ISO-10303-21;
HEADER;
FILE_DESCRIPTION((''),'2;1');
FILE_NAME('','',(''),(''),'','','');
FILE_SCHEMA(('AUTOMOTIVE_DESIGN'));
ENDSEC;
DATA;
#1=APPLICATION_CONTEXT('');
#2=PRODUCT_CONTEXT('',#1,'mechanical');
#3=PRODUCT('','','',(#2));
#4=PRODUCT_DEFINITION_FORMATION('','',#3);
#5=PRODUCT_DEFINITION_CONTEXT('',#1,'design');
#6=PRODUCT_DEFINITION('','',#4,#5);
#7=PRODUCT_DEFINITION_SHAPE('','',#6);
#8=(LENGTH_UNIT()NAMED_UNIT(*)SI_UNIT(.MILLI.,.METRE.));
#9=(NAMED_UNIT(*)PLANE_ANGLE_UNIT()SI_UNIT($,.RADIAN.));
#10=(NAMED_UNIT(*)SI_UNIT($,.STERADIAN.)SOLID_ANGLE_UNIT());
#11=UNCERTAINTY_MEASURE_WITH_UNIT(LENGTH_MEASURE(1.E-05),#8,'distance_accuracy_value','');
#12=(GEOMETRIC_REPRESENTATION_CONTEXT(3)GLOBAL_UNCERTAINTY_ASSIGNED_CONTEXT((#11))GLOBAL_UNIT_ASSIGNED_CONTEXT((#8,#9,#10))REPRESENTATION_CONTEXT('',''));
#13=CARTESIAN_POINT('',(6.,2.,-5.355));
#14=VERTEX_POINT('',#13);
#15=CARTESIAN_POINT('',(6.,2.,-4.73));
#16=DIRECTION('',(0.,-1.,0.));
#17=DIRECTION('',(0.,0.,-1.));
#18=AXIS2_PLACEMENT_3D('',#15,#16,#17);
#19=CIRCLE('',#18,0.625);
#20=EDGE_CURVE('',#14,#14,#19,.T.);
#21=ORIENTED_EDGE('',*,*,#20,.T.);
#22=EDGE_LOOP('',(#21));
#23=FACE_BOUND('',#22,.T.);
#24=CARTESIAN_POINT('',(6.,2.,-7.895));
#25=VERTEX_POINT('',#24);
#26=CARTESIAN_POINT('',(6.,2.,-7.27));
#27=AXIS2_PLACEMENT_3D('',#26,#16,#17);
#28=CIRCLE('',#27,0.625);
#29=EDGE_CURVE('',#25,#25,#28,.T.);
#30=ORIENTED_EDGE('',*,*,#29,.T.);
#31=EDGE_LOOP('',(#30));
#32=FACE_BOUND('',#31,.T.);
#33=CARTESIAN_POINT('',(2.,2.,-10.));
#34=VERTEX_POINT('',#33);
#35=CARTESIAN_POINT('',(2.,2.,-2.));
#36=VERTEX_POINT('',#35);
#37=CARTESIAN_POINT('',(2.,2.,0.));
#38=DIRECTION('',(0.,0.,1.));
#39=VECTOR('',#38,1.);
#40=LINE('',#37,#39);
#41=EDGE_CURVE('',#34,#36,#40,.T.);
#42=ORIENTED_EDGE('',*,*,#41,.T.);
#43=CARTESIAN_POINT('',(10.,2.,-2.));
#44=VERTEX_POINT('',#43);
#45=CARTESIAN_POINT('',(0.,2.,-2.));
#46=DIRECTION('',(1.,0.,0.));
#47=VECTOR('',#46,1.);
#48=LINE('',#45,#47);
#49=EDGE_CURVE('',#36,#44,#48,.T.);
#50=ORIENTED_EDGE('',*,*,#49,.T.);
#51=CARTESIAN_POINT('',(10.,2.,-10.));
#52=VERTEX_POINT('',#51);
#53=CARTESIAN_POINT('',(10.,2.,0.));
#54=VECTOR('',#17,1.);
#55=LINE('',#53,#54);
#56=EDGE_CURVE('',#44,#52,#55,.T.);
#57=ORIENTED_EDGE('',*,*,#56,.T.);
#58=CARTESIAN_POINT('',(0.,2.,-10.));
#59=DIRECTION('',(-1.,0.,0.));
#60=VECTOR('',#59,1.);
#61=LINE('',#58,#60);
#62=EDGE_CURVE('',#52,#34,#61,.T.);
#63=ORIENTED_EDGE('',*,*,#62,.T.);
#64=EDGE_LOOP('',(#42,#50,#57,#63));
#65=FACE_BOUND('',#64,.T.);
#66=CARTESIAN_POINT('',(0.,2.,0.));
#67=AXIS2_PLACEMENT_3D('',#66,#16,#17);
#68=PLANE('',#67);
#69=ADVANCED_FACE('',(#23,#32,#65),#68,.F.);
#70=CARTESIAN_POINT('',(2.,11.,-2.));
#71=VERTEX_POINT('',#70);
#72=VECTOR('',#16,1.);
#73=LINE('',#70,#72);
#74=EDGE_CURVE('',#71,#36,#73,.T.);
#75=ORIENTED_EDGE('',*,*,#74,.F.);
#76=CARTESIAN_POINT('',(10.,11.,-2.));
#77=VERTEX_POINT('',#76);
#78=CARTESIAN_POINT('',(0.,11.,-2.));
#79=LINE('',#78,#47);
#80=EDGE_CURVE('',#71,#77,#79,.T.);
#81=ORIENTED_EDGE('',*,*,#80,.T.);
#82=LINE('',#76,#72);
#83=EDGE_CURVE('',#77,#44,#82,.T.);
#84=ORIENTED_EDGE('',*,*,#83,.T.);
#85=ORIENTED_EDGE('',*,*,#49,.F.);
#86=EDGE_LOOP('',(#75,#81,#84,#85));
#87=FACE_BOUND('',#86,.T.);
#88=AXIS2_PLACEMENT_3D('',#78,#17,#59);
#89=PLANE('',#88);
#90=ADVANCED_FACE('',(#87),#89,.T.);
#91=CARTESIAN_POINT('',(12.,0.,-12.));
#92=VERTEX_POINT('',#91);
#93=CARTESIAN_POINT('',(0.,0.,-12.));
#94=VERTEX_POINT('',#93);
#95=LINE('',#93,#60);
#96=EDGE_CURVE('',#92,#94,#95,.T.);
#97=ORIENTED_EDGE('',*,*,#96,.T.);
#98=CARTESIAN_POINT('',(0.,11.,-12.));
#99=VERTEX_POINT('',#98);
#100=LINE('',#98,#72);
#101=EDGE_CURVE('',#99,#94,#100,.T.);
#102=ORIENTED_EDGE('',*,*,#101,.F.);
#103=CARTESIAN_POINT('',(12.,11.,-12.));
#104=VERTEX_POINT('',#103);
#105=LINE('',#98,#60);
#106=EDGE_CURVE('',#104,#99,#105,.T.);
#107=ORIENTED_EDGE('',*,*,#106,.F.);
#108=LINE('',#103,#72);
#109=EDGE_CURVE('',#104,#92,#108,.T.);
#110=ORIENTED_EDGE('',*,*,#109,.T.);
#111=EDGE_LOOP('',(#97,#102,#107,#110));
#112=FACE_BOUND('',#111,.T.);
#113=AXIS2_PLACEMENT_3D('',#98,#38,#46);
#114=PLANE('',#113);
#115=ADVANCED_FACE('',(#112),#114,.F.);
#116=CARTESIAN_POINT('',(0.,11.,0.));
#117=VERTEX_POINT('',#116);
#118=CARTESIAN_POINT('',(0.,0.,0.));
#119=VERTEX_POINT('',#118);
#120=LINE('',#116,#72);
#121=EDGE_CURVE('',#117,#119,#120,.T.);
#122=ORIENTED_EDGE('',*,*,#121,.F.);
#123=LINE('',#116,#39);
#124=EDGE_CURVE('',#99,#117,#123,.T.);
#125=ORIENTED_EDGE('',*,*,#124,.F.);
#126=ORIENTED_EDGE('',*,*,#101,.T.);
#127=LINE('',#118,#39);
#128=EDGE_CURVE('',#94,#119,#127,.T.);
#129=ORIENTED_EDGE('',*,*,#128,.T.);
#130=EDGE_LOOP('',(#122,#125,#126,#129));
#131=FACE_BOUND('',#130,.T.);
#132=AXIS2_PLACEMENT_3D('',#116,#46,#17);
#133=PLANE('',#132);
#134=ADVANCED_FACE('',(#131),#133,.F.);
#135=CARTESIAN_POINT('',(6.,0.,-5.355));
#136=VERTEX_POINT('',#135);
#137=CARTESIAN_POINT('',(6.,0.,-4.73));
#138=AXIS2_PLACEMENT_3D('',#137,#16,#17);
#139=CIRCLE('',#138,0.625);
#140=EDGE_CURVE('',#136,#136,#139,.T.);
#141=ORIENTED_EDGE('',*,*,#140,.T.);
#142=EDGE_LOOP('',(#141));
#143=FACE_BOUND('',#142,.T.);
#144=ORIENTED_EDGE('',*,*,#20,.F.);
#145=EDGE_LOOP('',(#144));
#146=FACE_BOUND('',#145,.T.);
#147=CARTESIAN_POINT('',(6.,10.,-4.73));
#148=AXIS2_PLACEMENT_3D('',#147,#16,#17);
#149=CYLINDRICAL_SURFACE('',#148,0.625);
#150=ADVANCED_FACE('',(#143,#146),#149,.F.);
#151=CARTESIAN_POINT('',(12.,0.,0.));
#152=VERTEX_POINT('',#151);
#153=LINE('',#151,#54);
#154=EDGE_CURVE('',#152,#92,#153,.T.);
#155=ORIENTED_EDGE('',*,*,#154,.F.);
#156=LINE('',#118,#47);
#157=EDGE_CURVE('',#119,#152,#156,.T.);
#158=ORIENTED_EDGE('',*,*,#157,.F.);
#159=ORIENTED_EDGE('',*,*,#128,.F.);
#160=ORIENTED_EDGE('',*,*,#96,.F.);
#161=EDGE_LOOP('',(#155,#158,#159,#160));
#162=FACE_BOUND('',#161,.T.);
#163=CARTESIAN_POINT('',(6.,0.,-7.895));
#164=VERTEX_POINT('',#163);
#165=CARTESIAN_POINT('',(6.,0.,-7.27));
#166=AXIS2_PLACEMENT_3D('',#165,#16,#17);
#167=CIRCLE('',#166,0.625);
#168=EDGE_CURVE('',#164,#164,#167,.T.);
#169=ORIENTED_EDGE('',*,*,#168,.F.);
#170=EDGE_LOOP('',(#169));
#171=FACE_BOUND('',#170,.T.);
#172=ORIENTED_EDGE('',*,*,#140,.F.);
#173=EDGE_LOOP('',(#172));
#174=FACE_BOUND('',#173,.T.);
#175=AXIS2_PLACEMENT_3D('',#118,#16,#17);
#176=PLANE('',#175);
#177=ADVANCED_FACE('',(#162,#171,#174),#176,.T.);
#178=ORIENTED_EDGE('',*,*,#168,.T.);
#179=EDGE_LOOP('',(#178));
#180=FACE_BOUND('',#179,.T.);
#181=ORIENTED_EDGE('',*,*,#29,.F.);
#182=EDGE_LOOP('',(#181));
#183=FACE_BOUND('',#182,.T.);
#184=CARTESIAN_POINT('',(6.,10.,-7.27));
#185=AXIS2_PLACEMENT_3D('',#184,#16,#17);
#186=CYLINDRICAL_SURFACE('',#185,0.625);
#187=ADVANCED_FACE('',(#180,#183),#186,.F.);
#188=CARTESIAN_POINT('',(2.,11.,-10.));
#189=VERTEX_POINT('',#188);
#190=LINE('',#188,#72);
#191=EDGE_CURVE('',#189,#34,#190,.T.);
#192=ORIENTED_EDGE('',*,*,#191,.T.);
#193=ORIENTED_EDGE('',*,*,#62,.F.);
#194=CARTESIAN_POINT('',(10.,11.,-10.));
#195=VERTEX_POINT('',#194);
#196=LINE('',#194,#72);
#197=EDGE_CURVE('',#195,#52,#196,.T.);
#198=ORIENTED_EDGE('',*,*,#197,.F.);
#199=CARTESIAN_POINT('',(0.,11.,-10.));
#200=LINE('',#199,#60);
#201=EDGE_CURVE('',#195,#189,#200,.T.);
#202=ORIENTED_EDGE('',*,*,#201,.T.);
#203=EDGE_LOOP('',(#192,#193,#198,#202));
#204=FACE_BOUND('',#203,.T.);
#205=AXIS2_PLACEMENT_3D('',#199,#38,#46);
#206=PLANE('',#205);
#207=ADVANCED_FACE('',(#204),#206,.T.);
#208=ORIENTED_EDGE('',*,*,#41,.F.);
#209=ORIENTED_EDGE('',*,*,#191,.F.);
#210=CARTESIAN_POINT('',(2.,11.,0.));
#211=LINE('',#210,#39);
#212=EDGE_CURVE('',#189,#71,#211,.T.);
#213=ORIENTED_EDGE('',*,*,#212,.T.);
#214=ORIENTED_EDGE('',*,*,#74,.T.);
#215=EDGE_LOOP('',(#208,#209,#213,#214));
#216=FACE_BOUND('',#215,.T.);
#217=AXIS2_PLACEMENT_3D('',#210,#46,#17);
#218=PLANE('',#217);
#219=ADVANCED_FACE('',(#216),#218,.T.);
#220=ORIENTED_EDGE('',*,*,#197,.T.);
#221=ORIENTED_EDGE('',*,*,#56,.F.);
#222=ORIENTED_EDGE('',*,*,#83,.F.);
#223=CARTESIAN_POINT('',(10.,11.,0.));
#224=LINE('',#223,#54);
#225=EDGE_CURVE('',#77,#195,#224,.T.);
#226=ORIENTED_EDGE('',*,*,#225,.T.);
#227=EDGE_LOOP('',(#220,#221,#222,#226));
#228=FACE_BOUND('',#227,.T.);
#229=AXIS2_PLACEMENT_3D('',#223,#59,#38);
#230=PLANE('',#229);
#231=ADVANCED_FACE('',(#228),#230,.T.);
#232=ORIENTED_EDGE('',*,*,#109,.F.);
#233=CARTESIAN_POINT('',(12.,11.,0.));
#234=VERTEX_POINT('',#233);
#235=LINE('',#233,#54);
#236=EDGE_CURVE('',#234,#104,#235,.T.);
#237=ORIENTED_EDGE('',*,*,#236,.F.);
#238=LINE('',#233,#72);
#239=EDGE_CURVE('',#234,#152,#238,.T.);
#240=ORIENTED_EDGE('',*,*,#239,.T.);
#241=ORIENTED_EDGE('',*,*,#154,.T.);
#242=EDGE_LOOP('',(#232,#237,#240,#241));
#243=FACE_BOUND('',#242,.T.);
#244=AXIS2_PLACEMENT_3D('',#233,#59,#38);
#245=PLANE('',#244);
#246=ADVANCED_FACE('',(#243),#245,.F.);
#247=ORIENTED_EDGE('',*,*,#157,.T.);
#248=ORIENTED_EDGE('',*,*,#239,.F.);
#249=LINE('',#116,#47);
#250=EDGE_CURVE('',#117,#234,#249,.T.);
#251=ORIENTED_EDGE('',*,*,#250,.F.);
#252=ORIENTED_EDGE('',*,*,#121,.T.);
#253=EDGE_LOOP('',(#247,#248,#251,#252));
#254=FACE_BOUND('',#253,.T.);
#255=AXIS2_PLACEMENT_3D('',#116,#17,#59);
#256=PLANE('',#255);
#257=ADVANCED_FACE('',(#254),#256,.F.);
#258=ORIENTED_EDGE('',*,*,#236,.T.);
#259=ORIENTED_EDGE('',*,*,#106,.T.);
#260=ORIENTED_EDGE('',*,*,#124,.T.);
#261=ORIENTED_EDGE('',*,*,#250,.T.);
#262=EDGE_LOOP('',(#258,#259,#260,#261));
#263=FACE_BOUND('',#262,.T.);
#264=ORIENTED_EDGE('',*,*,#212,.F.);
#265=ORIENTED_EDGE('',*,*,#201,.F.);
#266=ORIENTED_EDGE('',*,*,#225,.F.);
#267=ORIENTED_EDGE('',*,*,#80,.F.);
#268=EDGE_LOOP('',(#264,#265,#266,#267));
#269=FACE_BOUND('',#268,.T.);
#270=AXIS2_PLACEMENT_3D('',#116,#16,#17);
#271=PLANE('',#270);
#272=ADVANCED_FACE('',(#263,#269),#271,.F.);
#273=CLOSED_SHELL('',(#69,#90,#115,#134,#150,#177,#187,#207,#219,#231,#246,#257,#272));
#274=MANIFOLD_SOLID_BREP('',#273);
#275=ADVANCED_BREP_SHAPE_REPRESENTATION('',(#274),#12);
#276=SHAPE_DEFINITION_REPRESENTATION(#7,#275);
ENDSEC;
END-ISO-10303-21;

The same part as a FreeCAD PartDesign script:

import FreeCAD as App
import Part
import Sketcher

V = App.Vector
Q = App.Units.Quantity


def faces_at(feature, points):
    """Names of the faces that lie closest to the given points."""
    faces = feature.Shape.Faces
    near = lambda p: min(range(len(faces)), key=lambda i: faces[i].distToShape(Part.Vertex(*p))[0])
    return sorted({f"Face{near(p) + 1}" for p in points})


def add_polygon(sketch, points):
    """Adds a closed chain of lines whose ends are joined by coincident constraints."""
    first, n = sketch.GeometryCount, len(points)
    for a, b in zip(points, points[1:] + points[:1]):
        sketch.addGeometry(Part.LineSegment(App.Vector(*a, 0), App.Vector(*b, 0)), False)
    for i in range(n):
        sketch.addConstraint(Sketcher.Constraint("Coincident", first + i, 2, first + (i + 1) % n, 1))

doc = App.newDocument("Part")
body = doc.addObject("PartDesign::Body", "Body")

sketch1 = body.newObject("Sketcher::SketchObject", "Sketch")
sketch1.AttachmentSupport = (doc.getObject("XZ_Plane"), [""])
sketch1.MapMode = "FlatFace"
add_polygon(sketch1, [(0, -12), (0, 0), (12, 0), (12, -12)])
sketch1.addConstraint([
    Sketcher.Constraint("Vertical", 0),
    Sketcher.Constraint("Horizontal", 1),
    Sketcher.Constraint("Vertical", 2),
    Sketcher.Constraint("Horizontal", 3),
    Sketcher.Constraint("Coincident", 0, 2, -1, 1),
    Sketcher.Constraint("Equal", 3, 0),
    Sketcher.Constraint("DistanceX", 1, 1, 1, 2, Q("12 mm")),
])
pad1 = body.newObject("PartDesign::Pad", "Pad")
pad1.Profile = sketch1
pad1.Length = 11
pad1.Reversed = True
doc.recompute()

thickness = body.newObject("PartDesign::Thickness", "Thickness")
thickness.Base = (pad1, faces_at(pad1, [(6, 11, -6)]))
thickness.Value = 2
thickness.Reversed = True
thickness.Join = "Intersection"

sketch2 = body.newObject("Sketcher::SketchObject", "Sketch001")
sketch2.AttachmentSupport = (doc.getObject("XZ_Plane"), [""])
sketch2.MapMode = "FlatFace"
sketch2.addGeometry([
    Part.Circle(V(6, -4.7, 0), V(0, 0, 1), 0.6),
    Part.Circle(V(6, -7.3, 0), V(0, 0, 1), 0.6),
], False)
sketch2.addConstraint([
    Sketcher.Constraint("Equal", 0, 1),
    Sketcher.Constraint("Vertical", 0, 3, 1, 3),
    Sketcher.Constraint("Diameter", 0, Q("1.25 mm")),
    Sketcher.Constraint("DistanceX", -1, 1, 0, 3, Q("6 mm")),
    Sketcher.Constraint("DistanceY", 0, 3, -1, 1, Q("4.73 mm")),
    Sketcher.Constraint("DistanceY", 1, 3, -1, 1, Q("7.27 mm")),
])
pocket1 = body.newObject("PartDesign::Pocket", "Pocket")
pocket1.Profile = sketch2
pocket1.Length = 10

doc.recompute()
